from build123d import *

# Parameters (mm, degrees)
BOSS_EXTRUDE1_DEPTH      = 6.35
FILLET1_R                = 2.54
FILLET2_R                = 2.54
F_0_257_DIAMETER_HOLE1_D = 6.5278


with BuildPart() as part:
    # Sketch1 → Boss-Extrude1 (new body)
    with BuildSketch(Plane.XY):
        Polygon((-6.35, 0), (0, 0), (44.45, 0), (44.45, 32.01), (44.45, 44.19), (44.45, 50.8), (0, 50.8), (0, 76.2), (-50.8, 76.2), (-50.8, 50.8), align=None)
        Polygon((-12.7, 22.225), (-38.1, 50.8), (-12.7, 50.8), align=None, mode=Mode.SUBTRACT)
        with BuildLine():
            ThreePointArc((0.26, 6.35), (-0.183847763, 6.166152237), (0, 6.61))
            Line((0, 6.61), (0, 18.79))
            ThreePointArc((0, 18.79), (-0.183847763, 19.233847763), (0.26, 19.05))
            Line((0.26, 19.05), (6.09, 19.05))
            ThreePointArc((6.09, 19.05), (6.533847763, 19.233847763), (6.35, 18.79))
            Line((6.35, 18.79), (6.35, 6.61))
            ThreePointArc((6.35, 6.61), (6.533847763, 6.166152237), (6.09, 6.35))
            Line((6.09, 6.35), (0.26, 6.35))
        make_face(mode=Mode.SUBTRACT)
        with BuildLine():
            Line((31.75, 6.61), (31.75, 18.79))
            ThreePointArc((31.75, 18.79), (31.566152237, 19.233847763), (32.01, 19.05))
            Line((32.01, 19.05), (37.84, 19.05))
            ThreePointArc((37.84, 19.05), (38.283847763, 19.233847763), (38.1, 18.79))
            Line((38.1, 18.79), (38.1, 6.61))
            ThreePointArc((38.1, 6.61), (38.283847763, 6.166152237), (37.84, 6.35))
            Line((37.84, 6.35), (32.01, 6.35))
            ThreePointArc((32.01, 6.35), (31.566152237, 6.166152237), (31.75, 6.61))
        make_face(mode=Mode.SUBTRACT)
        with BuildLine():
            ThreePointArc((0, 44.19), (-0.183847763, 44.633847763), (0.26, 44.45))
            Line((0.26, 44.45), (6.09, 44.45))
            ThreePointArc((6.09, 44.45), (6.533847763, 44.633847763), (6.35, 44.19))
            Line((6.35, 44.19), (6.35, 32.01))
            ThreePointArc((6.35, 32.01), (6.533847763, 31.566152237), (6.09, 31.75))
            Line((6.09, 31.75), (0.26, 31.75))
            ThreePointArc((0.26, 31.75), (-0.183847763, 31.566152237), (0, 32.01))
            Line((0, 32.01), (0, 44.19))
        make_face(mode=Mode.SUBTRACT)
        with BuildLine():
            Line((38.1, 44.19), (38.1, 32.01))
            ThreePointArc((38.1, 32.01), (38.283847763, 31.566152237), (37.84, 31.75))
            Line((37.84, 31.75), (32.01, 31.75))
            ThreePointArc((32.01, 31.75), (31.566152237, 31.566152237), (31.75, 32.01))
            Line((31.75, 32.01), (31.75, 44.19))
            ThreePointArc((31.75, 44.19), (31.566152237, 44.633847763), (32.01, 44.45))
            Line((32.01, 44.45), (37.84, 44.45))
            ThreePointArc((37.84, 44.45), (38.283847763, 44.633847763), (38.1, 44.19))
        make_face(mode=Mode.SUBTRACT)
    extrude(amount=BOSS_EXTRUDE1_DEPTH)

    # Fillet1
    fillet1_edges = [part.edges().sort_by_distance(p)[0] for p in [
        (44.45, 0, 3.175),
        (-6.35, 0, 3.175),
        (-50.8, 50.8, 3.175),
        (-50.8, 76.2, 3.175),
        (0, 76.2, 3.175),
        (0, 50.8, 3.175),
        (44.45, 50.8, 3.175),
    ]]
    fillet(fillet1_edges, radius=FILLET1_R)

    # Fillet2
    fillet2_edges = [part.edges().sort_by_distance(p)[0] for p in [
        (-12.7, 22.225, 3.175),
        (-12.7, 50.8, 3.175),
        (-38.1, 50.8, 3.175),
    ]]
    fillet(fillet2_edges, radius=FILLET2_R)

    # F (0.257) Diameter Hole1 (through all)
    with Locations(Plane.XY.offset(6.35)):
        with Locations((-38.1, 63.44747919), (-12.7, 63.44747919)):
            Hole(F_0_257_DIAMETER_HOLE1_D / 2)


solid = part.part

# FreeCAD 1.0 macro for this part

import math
import FreeCAD as App
import Part
import Sketcher
from FreeCAD import Vector
Q = App.Units.Quantity


def edges_at(feature, points):
    """Names of the edges that pass closest to the given points."""
    edges = feature.Shape.Edges
    near = lambda p: min(range(len(edges)), key=lambda i: edges[i].distToShape(Part.Vertex(*p))[0])
    return sorted({f"Edge{near(p) + 1}" for p in points})


def add_polygon(sketch, points):
    """Adds a closed chain of lines whose ends are joined by coincident constraints."""
    first, n = sketch.GeometryCount, len(points)
    for a, b in zip(points, points[1:] + points[:1]):
        sketch.addGeometry(Part.LineSegment(App.Vector(*a, 0), App.Vector(*b, 0)), False)
    for i in range(n):
        sketch.addConstraint(Sketcher.Constraint("Coincident", first + i, 2, first + (i + 1) % n, 1))

doc = App.newDocument("Part")
params = doc.addObject("Spreadsheet::Sheet", "Params")
for row, (alias, value) in enumerate([
    ("sketch1_width", "2 in"),
    ("sketch1_width2", "1 in"),
    ("sketch1_width3", "1.75 in"),
    ("sketch1_height", "1.125 in"),
    ("pad1_length", "0.25 in"),
    ("fillet_radius", "0.1 in"),
    ("fillet2_radius", "0.1 in"),
    ("sketch2_diameter", "0.257 in"),
    ("hole_diameter", "0.257 in"),
], start=1):
    params.set(f"A{row}", alias)
    params.set(f"B{row}", "=" + value)
    params.setAlias(f"B{row}", alias)

body = doc.addObject("PartDesign::Body", "Body")

sketch1 = doc.addObject("Sketcher::SketchObject", "Sketch")
body.addObject(sketch1)
sketch1.AttachmentSupport = (doc.XY_Plane, [""])
sketch1.MapMode = "FlatFace"
add_polygon(sketch1, [(-6.35, 0), (44.45, 0), (44.45, 50.8), (0, 50.8), (0, 76.2), (-50.8, 76.2), (-50.8, 50.8)])
sketch1.addGeometry(Part.LineSegment(Vector(6.09, 6.35, 0), Vector(0.26, 6.35, 0)), False)
sketch1.addGeometry(Part.ArcOfCircle(Part.Circle(Vector(0, 6.35, 0), Vector(0, 0, 1), 0.26), math.radians(90), math.radians(360)), False)
sketch1.addGeometry(Part.LineSegment(Vector(0, 6.61, 0), Vector(0, 18.79, 0)), False)
sketch1.addGeometry(Part.ArcOfCircle(Part.Circle(Vector(0, 19.05, 0), Vector(0, 0, 1), 0.26), math.radians(0), math.radians(270)), False)
sketch1.addGeometry(Part.LineSegment(Vector(0.26, 19.05, 0), Vector(6.09, 19.05, 0)), False)
sketch1.addGeometry(Part.ArcOfCircle(Part.Circle(Vector(6.35, 19.05, 0), Vector(0, 0, 1), 0.26), math.radians(-90), math.radians(180)), False)
sketch1.addGeometry(Part.LineSegment(Vector(6.35, 18.79, 0), Vector(6.35, 6.61, 0)), False)
sketch1.addGeometry(Part.ArcOfCircle(Part.Circle(Vector(6.35, 6.35, 0), Vector(0, 0, 1), 0.26), math.radians(180), math.radians(450)), False)
sketch1.addGeometry(Part.ArcOfCircle(Part.Circle(Vector(31.75, 6.35, 0), Vector(0, 0, 1), 0.26), math.radians(90), math.radians(360)), False)
sketch1.addGeometry(Part.LineSegment(Vector(31.75, 6.61, 0), Vector(31.75, 18.79, 0)), False)
sketch1.addGeometry(Part.ArcOfCircle(Part.Circle(Vector(31.75, 19.05, 0), Vector(0, 0, 1), 0.26), math.radians(0), math.radians(270)), False)
sketch1.addGeometry(Part.LineSegment(Vector(32.01, 19.05, 0), Vector(37.84, 19.05, 0)), False)
sketch1.addGeometry(Part.ArcOfCircle(Part.Circle(Vector(38.1, 19.05, 0), Vector(0, 0, 1), 0.26), math.radians(-90), math.radians(180)), False)
sketch1.addGeometry(Part.LineSegment(Vector(38.1, 18.79, 0), Vector(38.1, 6.61, 0)), False)
sketch1.addGeometry(Part.ArcOfCircle(Part.Circle(Vector(38.1, 6.35, 0), Vector(0, 0, 1), 0.26), math.radians(180), math.radians(450)), False)
sketch1.addGeometry(Part.LineSegment(Vector(37.84, 6.35, 0), Vector(32.01, 6.35, 0)), False)
add_polygon(sketch1, [(-12.7, 50.8), (-12.7, 22.225), (-38.1, 50.8)])
sketch1.addGeometry(Part.LineSegment(Vector(0, 32.01, 0), Vector(0, 44.19, 0)), False)
sketch1.addGeometry(Part.ArcOfCircle(Part.Circle(Vector(0, 44.45, 0), Vector(0, 0, 1), 0.26), math.radians(0), math.radians(270)), False)
sketch1.addGeometry(Part.LineSegment(Vector(0.26, 44.45, 0), Vector(6.09, 44.45, 0)), False)
sketch1.addGeometry(Part.ArcOfCircle(Part.Circle(Vector(6.35, 44.45, 0), Vector(0, 0, 1), 0.26), math.radians(-90), math.radians(180)), False)
sketch1.addGeometry(Part.LineSegment(Vector(6.35, 44.19, 0), Vector(6.35, 32.01, 0)), False)
sketch1.addGeometry(Part.ArcOfCircle(Part.Circle(Vector(6.35, 31.75, 0), Vector(0, 0, 1), 0.26), math.radians(180), math.radians(450)), False)
sketch1.addGeometry(Part.LineSegment(Vector(6.09, 31.75, 0), Vector(0.26, 31.75, 0)), False)
sketch1.addGeometry(Part.ArcOfCircle(Part.Circle(Vector(0, 31.75, 0), Vector(0, 0, 1), 0.26), math.radians(90), math.radians(360)), False)
sketch1.addGeometry(Part.ArcOfCircle(Part.Circle(Vector(38.1, 44.45, 0), Vector(0, 0, 1), 0.26), math.radians(-90), math.radians(180)), False)
sketch1.addGeometry(Part.LineSegment(Vector(38.1, 44.19, 0), Vector(38.1, 32.01, 0)), False)
sketch1.addGeometry(Part.ArcOfCircle(Part.Circle(Vector(38.1, 31.75, 0), Vector(0, 0, 1), 0.26), math.radians(180), math.radians(450)), False)
sketch1.addGeometry(Part.LineSegment(Vector(37.84, 31.75, 0), Vector(32.01, 31.75, 0)), False)
sketch1.addGeometry(Part.ArcOfCircle(Part.Circle(Vector(31.75, 31.75, 0), Vector(0, 0, 1), 0.26), math.radians(90), math.radians(360)), False)
sketch1.addGeometry(Part.LineSegment(Vector(31.75, 32.01, 0), Vector(31.75, 44.19, 0)), False)
sketch1.addGeometry(Part.ArcOfCircle(Part.Circle(Vector(31.75, 44.45, 0), Vector(0, 0, 1), 0.26), math.radians(0), math.radians(270)), False)
sketch1.addGeometry(Part.LineSegment(Vector(32.01, 44.45, 0), Vector(37.84, 44.45, 0)), False)
sketch1.addConstraint([
    Sketcher.Constraint("Coincident", 7, 2, 8, 2),
    Sketcher.Constraint("Coincident", 8, 1, 9, 1),
    Sketcher.Constraint("Coincident", 9, 2, 10, 2),
    Sketcher.Constraint("Coincident", 10, 1, 11, 1),
    Sketcher.Constraint("Coincident", 11, 2, 12, 2),
    Sketcher.Constraint("Coincident", 12, 1, 13, 1),
    Sketcher.Constraint("Coincident", 13, 2, 14, 2),
    Sketcher.Constraint("Coincident", 14, 1, 7, 1),
    Sketcher.Constraint("Coincident", 15, 1, 16, 1),
    Sketcher.Constraint("Coincident", 16, 2, 17, 2),
    Sketcher.Constraint("Coincident", 17, 1, 18, 1),
    Sketcher.Constraint("Coincident", 18, 2, 19, 2),
    Sketcher.Constraint("Coincident", 19, 1, 20, 1),
    Sketcher.Constraint("Coincident", 20, 2, 21, 2),
    Sketcher.Constraint("Coincident", 21, 1, 22, 1),
    Sketcher.Constraint("Coincident", 22, 2, 15, 2),
    Sketcher.Constraint("Coincident", 26, 2, 27, 2),
    Sketcher.Constraint("Coincident", 27, 1, 28, 1),
    Sketcher.Constraint("Coincident", 28, 2, 29, 2),
    Sketcher.Constraint("Coincident", 29, 1, 30, 1),
    Sketcher.Constraint("Coincident", 30, 2, 31, 2),
    Sketcher.Constraint("Coincident", 31, 1, 32, 1),
    Sketcher.Constraint("Coincident", 32, 2, 33, 2),
    Sketcher.Constraint("Coincident", 33, 1, 26, 1),
    Sketcher.Constraint("Coincident", 34, 1, 35, 1),
    Sketcher.Constraint("Coincident", 35, 2, 36, 2),
    Sketcher.Constraint("Coincident", 36, 1, 37, 1),
    Sketcher.Constraint("Coincident", 37, 2, 38, 2),
    Sketcher.Constraint("Coincident", 38, 1, 39, 1),
    Sketcher.Constraint("Coincident", 39, 2, 40, 2),
    Sketcher.Constraint("Coincident", 40, 1, 41, 1),
    Sketcher.Constraint("Coincident", 41, 2, 34, 2),
    Sketcher.Constraint("Horizontal", 0),
    Sketcher.Constraint("Vertical", 1),
    Sketcher.Constraint("Horizontal", 2),
    Sketcher.Constraint("Vertical", 3),
    Sketcher.Constraint("Horizontal", 4),
    Sketcher.Constraint("Vertical", 5),
    Sketcher.Constraint("Horizontal", 7),
    Sketcher.Constraint("Vertical", 9),
    Sketcher.Constraint("Horizontal", 11),
    Sketcher.Constraint("Vertical", 13),
    Sketcher.Constraint("Vertical", 16),
    Sketcher.Constraint("Horizontal", 18),
    Sketcher.Constraint("Vertical", 20),
    Sketcher.Constraint("Horizontal", 22),
    Sketcher.Constraint("Vertical", 23),
    Sketcher.Constraint("Horizontal", 25),
    Sketcher.Constraint("Vertical", 26),
    Sketcher.Constraint("Horizontal", 28),
    Sketcher.Constraint("Vertical", 30),
    Sketcher.Constraint("Horizontal", 32),
    Sketcher.Constraint("Vertical", 35),
    Sketcher.Constraint("Horizontal", 37),
    Sketcher.Constraint("Vertical", 39),
    Sketcher.Constraint("Horizontal", 41),
    Sketcher.Constraint("Equal", 8, 10),
    Sketcher.Constraint("Equal", 10, 12),
    Sketcher.Constraint("Equal", 12, 14),
    Sketcher.Constraint("Equal", 14, 15),
    Sketcher.Constraint("Equal", 15, 17),
    Sketcher.Constraint("Equal", 17, 19),
    Sketcher.Constraint("Equal", 19, 21),
    Sketcher.Constraint("Equal", 21, 27),
    Sketcher.Constraint("Equal", 27, 29),
    Sketcher.Constraint("Equal", 29, 31),
    Sketcher.Constraint("Equal", 31, 33),
    Sketcher.Constraint("Equal", 33, 34),
    Sketcher.Constraint("Equal", 34, 36),
    Sketcher.Constraint("Equal", 36, 38),
    Sketcher.Constraint("Equal", 38, 40),
    Sketcher.Constraint("PointOnObject", 8, 3, -2),
    Sketcher.Constraint("PointOnObject", 10, 3, -2),
    Sketcher.Constraint("PointOnObject", 27, 3, -2),
    Sketcher.Constraint("PointOnObject", 33, 3, -2),
    Sketcher.Constraint("PointOnObject", 0, 2, -1),
    Sketcher.Constraint("PointOnObject", 2, 2, -2),
    Sketcher.Constraint("PointOnObject", 8, 1, -2),
    Sketcher.Constraint("PointOnObject", 26, 2, -2),
    Sketcher.Constraint("Horizontal", 10, 3, 12, 3),
    Sketcher.Constraint("Horizontal", 8, 3, 14, 3),
    Sketcher.Constraint("Horizontal", 14, 3, 15, 3),
    Sketcher.Constraint("Horizontal", 12, 3, 17, 3),
    Sketcher.Constraint("Horizontal", 17, 3, 19, 3),
    Sketcher.Constraint("Horizontal", 15, 3, 21, 3),
    Sketcher.Constraint("Horizontal", 27, 3, 29, 3),
    Sketcher.Constraint("Horizontal", 31, 3, 33, 3),
    Sketcher.Constraint("Horizontal", 29, 3, 34, 3),
    Sketcher.Constraint("Horizontal", 33, 3, 36, 3),
    Sketcher.Constraint("Horizontal", 36, 3, 38, 3),
    Sketcher.Constraint("Horizontal", 34, 3, 40, 3),
    Sketcher.Constraint("Horizontal", 2, 2, 5, 2),
    Sketcher.Constraint("Horizontal", 21, 3, 7, 2),
    Sketcher.Constraint("Horizontal", 19, 3, 10, 1),
    Sketcher.Constraint("Horizontal", 11, 2, 17, 1),
    Sketcher.Constraint("Horizontal", 14, 1, 21, 1),
    Sketcher.Constraint("Horizontal", 5, 2, 24, 2),
    Sketcher.Constraint("Horizontal", 40, 3, 27, 1),
    Sketcher.Constraint("Horizontal", 38, 3, 31, 1),
    Sketcher.Constraint("Horizontal", 32, 2, 36, 1),
    Sketcher.Constraint("Horizontal", 28, 2, 40, 1),
    Sketcher.Constraint("Vertical", 12, 3, 14, 3),
    Sketcher.Constraint("Vertical", 15, 3, 17, 3),
    Sketcher.Constraint("Vertical", 19, 3, 21, 3),
    Sketcher.Constraint("Vertical", 14, 3, 29, 3),
    Sketcher.Constraint("Vertical", 29, 3, 31, 3),
    Sketcher.Constraint("Vertical", 21, 3, 34, 3),
    Sketcher.Constraint("Vertical", 34, 3, 36, 3),
    Sketcher.Constraint("Vertical", 17, 3, 38, 3),
    Sketcher.Constraint("Vertical", 38, 3, 40, 3),
    Sketcher.Constraint("Vertical", 31, 3, 12, 1),
    Sketcher.Constraint("Vertical", 40, 3, 15, 1),
    Sketcher.Constraint("Vertical", 36, 3, 19, 1),
    Sketcher.Constraint("Vertical", 13, 2, 29, 1),
    Sketcher.Constraint("Vertical", 20, 2, 34, 1),
    Sketcher.Constraint("Vertical", 16, 2, 38, 1),
    Sketcher.Constraint("Equal", 0, 4),
    Sketcher.Constraint("Equal", 11, 18),
    Sketcher.Constraint("Equal", 4, 1),
    Sketcher.Constraint("Equal", 25, 3),
    Sketcher.Constraint("Equal", 20, 26),
    Sketcher.Constraint("DistanceX", 0, 1, 0, 2, Q("2 in")),
    Sketcher.Constraint("DistanceX", 25, 1, 25, 2, Q("1 in")),
    Sketcher.Constraint("DistanceX", 14, 3, 15, 3, Q("1 in")),
    Sketcher.Constraint("DistanceY", 10, 3, 27, 3, Q("1 in")),
    Sketcher.Constraint("DistanceX", 2, 2, 2, 1, Q("1.75 in")),
    Sketcher.Constraint("DistanceX", -1, 1, 19, 3, Q("1.5 in")),
    Sketcher.Constraint("DistanceX", 23, 2, -1, 1, Q("0.5 in")),
    Sketcher.Constraint("DistanceY", 8, 3, 10, 3, Q("0.5 in")),
    Sketcher.Constraint("DistanceY", 23, 2, 23, 1, Q("1.125 in")),
    Sketcher.Constraint("DistanceY", -1, 1, 8, 3, Q("0.25 in")),
    Sketcher.Constraint("Radius", 8, 0.26),
])
sketch1.setExpression("Constraints[131]", "Params.sketch1_width")
sketch1.setExpression("Constraints[132]", "Params.sketch1_width2")
sketch1.setExpression("Constraints[135]", "Params.sketch1_width3")
sketch1.setExpression("Constraints[139]", "Params.sketch1_height")
pad1 = doc.addObject("PartDesign::Pad", "Pad")
body.addObject(pad1)
pad1.Profile = sketch1
pad1.setExpression("Length", "Params.pad1_length")
doc.recompute()

fillet = doc.addObject("PartDesign::Fillet", "Fillet")
body.addObject(fillet)
fillet.Base = (pad1, edges_at(pad1, [
    (44.45, 0, 3.175),
    (-6.35, 0, 3.175),
    (-50.8, 50.8, 3.175),
    (-50.8, 76.2, 3.175),
    (0, 76.2, 3.175),
    (0, 50.8, 3.175),
    (44.45, 50.8, 3.175),
]))
fillet.setExpression("Radius", "Params.fillet_radius")
doc.recompute()

fillet2 = doc.addObject("PartDesign::Fillet", "Fillet001")
body.addObject(fillet2)
fillet2.Base = (fillet, edges_at(fillet, [(-12.7, 22.225, 3.175), (-12.7, 50.8, 3.175), (-38.1, 50.8, 3.175)]))
fillet2.setExpression("Radius", "Params.fillet2_radius")

sketch2 = doc.addObject("Sketcher::SketchObject", "Sketch001")
body.addObject(sketch2)
sketch2.AttachmentSupport = (doc.XY_Plane, [""])
sketch2.MapMode = "FlatFace"
sketch2.AttachmentOffset = App.Placement(Vector(0, 0, 0.25 * 25.4), App.Rotation())
sketch2.addGeometry([
    Part.Circle(Vector(-38.1, 63.447479, 0), Vector(0, 0, 1), 3.2639),
    Part.Circle(Vector(-12.7, 63.447479, 0), Vector(0, 0, 1), 3.2639),
], False)
sketch2.addConstraint([
    Sketcher.Constraint("Equal", 0, 1),
    Sketcher.Constraint("Horizontal", 0, 3, 1, 3),
    Sketcher.Constraint("Diameter", 0, Q("0.257 in")),
    Sketcher.Constraint("DistanceX", 0, 3, 1, 3, Q("1 in")),
    Sketcher.Constraint("DistanceX", 0, 3, -1, 1, Q("1.5 in")),
    Sketcher.Constraint("DistanceY", -1, 1, 0, 3, 63.447479),
])
sketch2.setExpression("Constraints[2]", "Params.sketch2_diameter")
doc.recompute()
hole = doc.addObject("PartDesign::Hole", "Hole")
body.addObject(hole)
hole.Profile = sketch2
hole.ThreadType = "None"
hole.setExpression("Diameter", "Params.hole_diameter")
hole.DepthType = "ThroughAll"

doc.recompute()
